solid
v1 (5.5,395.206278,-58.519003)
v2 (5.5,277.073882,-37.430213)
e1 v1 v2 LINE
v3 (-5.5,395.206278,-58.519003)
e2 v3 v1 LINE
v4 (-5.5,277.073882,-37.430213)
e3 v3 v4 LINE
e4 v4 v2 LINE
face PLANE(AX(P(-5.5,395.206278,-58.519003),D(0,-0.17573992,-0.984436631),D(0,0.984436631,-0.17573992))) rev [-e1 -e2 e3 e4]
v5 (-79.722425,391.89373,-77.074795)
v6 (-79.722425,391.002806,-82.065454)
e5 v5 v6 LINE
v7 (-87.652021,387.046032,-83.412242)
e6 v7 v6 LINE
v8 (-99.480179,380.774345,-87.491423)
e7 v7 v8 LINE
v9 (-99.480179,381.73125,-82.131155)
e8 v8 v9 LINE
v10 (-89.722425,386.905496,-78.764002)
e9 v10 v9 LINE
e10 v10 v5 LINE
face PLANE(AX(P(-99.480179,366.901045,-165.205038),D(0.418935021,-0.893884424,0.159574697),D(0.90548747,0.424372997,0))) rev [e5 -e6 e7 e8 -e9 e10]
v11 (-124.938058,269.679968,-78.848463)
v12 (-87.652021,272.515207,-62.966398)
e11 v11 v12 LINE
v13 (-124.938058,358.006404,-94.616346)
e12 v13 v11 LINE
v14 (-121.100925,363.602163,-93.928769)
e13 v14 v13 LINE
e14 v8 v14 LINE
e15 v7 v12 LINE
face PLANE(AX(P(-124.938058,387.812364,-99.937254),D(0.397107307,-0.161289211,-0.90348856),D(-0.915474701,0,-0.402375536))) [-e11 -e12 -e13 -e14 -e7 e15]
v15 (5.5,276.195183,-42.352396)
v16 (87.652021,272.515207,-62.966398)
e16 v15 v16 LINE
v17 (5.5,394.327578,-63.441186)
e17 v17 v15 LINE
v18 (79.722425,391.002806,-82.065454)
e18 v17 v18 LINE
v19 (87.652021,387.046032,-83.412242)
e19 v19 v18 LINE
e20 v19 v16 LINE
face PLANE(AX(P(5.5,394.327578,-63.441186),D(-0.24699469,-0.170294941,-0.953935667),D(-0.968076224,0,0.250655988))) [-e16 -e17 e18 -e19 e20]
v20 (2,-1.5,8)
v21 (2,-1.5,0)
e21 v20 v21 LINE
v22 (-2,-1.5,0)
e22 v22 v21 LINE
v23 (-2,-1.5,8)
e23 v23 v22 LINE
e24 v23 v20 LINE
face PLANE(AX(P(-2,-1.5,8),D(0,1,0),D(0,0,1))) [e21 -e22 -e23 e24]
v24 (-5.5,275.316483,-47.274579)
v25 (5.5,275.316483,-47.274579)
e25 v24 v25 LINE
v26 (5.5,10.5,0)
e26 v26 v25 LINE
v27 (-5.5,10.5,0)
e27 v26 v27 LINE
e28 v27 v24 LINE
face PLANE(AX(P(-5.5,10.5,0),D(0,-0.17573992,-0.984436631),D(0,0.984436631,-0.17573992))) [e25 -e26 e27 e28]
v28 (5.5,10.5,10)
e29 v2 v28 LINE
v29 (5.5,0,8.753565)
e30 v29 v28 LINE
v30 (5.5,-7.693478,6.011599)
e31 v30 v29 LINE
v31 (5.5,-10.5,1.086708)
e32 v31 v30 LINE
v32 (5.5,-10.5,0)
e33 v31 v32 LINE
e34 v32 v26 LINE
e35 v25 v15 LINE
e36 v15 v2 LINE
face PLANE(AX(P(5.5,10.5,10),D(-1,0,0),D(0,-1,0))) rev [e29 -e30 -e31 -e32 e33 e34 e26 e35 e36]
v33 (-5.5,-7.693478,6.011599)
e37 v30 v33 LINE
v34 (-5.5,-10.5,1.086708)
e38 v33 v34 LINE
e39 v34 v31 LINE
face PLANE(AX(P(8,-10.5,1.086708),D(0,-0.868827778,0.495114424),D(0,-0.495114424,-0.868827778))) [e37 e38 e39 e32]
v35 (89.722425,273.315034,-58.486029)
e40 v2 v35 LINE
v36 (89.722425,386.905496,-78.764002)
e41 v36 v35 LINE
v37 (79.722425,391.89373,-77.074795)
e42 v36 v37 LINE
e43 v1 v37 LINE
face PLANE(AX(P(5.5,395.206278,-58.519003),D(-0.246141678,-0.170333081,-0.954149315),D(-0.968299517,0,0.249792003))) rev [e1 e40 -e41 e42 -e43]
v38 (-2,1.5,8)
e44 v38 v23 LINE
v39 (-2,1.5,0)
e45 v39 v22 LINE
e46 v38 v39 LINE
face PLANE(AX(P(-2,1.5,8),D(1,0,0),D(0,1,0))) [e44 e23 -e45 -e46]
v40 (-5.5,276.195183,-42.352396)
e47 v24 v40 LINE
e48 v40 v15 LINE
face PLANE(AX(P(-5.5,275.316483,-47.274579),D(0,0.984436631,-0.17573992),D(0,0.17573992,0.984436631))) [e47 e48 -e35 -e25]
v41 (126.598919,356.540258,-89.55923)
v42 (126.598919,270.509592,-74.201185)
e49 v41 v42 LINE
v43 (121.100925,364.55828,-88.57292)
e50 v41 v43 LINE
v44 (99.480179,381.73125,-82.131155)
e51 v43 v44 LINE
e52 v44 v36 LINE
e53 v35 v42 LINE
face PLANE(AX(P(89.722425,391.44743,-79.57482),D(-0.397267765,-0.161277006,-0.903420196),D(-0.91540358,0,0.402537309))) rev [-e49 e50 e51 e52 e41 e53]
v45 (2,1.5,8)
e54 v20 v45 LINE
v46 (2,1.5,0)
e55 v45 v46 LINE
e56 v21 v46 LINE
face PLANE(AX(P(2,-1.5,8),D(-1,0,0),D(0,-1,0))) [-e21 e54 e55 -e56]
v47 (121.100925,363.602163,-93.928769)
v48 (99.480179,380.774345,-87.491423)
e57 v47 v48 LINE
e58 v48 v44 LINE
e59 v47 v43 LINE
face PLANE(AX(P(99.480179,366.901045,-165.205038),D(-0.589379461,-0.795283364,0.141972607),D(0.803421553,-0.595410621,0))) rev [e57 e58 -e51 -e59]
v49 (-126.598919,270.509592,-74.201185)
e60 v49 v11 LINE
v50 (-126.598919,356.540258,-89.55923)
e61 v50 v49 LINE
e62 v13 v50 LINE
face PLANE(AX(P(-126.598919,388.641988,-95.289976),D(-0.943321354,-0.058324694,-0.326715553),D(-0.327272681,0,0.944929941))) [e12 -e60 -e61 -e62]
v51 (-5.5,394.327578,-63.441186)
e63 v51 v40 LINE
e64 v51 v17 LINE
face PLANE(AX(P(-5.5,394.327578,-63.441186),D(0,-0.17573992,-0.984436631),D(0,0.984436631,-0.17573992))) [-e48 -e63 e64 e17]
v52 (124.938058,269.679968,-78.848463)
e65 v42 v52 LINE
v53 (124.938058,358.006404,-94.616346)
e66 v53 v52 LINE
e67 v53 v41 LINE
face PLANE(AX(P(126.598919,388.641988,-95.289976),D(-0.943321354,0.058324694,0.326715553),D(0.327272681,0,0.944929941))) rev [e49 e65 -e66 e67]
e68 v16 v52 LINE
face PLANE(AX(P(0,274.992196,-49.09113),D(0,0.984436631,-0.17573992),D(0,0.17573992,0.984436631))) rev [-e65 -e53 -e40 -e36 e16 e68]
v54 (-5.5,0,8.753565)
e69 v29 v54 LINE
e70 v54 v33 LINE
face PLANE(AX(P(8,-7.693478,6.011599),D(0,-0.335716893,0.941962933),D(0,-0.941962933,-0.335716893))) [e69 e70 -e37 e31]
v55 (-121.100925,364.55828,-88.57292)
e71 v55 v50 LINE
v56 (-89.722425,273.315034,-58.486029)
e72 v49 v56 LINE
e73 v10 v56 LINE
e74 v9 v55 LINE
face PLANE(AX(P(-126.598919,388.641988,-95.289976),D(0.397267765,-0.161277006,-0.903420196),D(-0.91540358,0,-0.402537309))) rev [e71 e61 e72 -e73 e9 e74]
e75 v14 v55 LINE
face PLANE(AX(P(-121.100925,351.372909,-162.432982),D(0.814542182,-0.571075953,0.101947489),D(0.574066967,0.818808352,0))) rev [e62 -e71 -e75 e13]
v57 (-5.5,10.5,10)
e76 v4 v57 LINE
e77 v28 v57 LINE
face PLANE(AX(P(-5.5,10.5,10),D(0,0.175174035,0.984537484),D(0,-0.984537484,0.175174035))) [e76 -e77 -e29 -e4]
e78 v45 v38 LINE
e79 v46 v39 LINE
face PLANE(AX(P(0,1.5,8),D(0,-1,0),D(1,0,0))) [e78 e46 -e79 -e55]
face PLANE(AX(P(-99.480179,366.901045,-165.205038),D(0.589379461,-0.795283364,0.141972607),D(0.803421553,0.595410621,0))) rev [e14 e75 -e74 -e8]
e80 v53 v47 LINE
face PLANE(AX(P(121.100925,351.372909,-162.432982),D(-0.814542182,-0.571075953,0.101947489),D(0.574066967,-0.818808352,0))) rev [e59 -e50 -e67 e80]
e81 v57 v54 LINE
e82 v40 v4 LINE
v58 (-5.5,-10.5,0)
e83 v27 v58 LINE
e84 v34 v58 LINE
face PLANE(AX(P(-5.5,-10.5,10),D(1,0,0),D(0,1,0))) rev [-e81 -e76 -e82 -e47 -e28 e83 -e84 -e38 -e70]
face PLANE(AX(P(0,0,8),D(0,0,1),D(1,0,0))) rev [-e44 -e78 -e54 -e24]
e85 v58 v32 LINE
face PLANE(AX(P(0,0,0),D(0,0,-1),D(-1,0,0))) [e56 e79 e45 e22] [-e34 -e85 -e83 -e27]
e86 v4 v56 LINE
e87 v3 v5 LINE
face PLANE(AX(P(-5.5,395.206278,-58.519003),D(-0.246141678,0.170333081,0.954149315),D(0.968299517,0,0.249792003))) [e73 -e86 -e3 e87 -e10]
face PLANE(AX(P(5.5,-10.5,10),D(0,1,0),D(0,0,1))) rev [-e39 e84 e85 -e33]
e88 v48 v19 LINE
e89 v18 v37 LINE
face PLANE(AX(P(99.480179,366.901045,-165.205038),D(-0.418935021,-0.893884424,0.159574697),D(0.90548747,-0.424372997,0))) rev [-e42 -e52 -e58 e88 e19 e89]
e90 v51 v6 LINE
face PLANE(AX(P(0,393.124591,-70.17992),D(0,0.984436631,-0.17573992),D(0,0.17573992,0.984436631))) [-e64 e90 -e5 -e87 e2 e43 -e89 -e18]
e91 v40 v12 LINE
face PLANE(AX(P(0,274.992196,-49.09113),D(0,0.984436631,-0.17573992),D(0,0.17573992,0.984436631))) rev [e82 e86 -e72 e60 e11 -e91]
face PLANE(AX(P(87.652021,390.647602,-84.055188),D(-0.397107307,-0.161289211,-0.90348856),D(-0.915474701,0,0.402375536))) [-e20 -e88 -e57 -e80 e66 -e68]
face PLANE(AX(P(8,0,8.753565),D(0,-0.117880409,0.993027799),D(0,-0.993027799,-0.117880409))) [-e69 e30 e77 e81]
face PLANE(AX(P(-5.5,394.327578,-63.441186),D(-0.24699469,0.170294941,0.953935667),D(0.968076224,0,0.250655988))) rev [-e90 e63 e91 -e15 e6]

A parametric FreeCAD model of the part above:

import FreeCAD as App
import Part
import Sketcher

V = App.Vector


def add_polygon(sketch, points):
    """Adds a closed chain of lines whose ends are joined by coincident constraints."""
    first, n = sketch.GeometryCount, len(points)
    for a, b in zip(points, points[1:] + points[:1]):
        sketch.addGeometry(Part.LineSegment(App.Vector(*a, 0), App.Vector(*b, 0)), False)
    for i in range(n):
        sketch.addConstraint(Sketcher.Constraint("Coincident", first + i, 2, first + (i + 1) % n, 1))

doc = App.newDocument("Part")
params = doc.addObject("Spreadsheet::Sheet", "Params")
for row, (alias, value) in enumerate([
    ("sketch1_width", "11 mm"),
    ("sketch1_height", "21 mm"),
    ("pad1_length", "10 mm"),
    ("sketch2_width", "4 mm"),
    ("sketch2_height", "3 mm"),
    ("pocket1_length", "8 mm"),
    ("sketch4_height", "10 mm"),
    ("sketch4_length", "10 mm"),
    ("pad2_length", "5.5 mm"),
    ("pad2_length2", "5.5 mm"),
    ("sketch5_width", "11 mm"),
    ("pad3_length", "120 mm"),
    ("pocket3_length", "120 mm"),
], start=1):
    params.set(f"A{row}", alias)
    params.set(f"B{row}", "=" + value)
    params.setAlias(f"B{row}", alias)

body = doc.addObject("PartDesign::Body", "Body")

# Sketch on XY plane
sketch1 = doc.addObject("Sketcher::SketchObject", "Sketch")
body.addObject(sketch1)
sketch1.AttachmentSupport = (doc.XY_Plane, [""])
sketch1.MapMode = "FlatFace"
add_polygon(sketch1, [(-5.5, 10.5), (-5.5, -10.5), (5.5, -10.5), (5.5, 10.5)])  # lines 0-3
sketch1.addConstraint([
    Sketcher.Constraint("Vertical", 0),
    Sketcher.Constraint("Horizontal", 1),
    Sketcher.Constraint("Vertical", 2),
    Sketcher.Constraint("Horizontal", 3),
    Sketcher.Constraint("Symmetric", 0, 2, 2, 2, -1, 1),
    Sketcher.Constraint("DistanceX", 1, 1, 1, 2, 11.0),
    Sketcher.Constraint("DistanceY", 0, 2, 0, 1, 21.0),
])
sketch1.setExpression("Constraints[9]", "Params.sketch1_width")
sketch1.setExpression("Constraints[10]", "Params.sketch1_height")
pad1 = doc.addObject("PartDesign::Pad", "Pad")
body.addObject(pad1)
pad1.Profile = sketch1
pad1.setExpression("Length", "Params.pad1_length")

# Sketch on XY plane
sketch2 = doc.addObject("Sketcher::SketchObject", "Sketch001")
body.addObject(sketch2)
sketch2.AttachmentSupport = (doc.XY_Plane, [""])
sketch2.MapMode = "FlatFace"
add_polygon(sketch2, [(-2, 1.5), (-2, -1.5), (2, -1.5), (2, 1.5)])  # lines 0-3
sketch2.addConstraint([
    Sketcher.Constraint("Vertical", 0),
    Sketcher.Constraint("Horizontal", 1),
    Sketcher.Constraint("Vertical", 2),
    Sketcher.Constraint("Horizontal", 3),
    Sketcher.Constraint("Symmetric", 0, 2, 2, 2, -1, 1),
    Sketcher.Constraint("DistanceX", 1, 1, 1, 2, 4.0),
    Sketcher.Constraint("DistanceY", 0, 2, 0, 1, 3.0),
])
sketch2.setExpression("Constraints[9]", "Params.sketch2_width")
sketch2.setExpression("Constraints[10]", "Params.sketch2_height")
pocket1 = doc.addObject("PartDesign::Pocket", "Pocket")
body.addObject(pocket1)
pocket1.Profile = sketch2
pocket1.setExpression("Length", "Params.pocket1_length")
pocket1.Reversed = True

# Sketch on YZ plane
sketch3 = doc.addObject("Sketcher::SketchObject", "Sketch002")
body.addObject(sketch3)
sketch3.AttachmentSupport = (doc.YZ_Plane, [""])
sketch3.MapMode = "FlatFace"
add_polygon(sketch3, [(-10.5, 1.086709), (-7.693478, 6.011599), (0, 8.753565), (10.5, 10), (-11.32446, 10), (-10.760659, 1.086709)])  # lines 0-5
sketch3.addConstraint([
    Sketcher.Constraint("Horizontal", 3),
    Sketcher.Constraint("Horizontal", 5),
    Sketcher.Constraint("PointOnObject", 1, 2, -2),
    Sketcher.Constraint("DistanceY", -1, 1, 2, 2, 10.0),
    Sketcher.Constraint("DistanceX", 5, 2, 2, 2, 21.0),
    Sketcher.Constraint("DistanceX", -1, 1, 2, 2, 10.5),
    Sketcher.Constraint("DistanceX", 3, 2, 3, 1, 21.82446),
    Sketcher.Constraint("DistanceX", 5, 1, 5, 2, 0.260659),
    Sketcher.Constraint("DistanceY", -1, 1, 0, 2, 6.011599),
    Sketcher.Constraint("Distance", 0, 5.668431),
    Sketcher.Constraint("DistanceY", -1, 1, 4, 2, 1.086709),
    Sketcher.Constraint("Distance", 1, 8.167495),
])
pocket2 = doc.addObject("PartDesign::Pocket", "Pocket001")
body.addObject(pocket2)
pocket2.Profile = sketch3
pocket2.Type = "ThroughAll"
pocket2.Midplane = True

# Sketch on YZ plane
sketch4 = doc.addObject("Sketcher::SketchObject", "Sketch003")
body.addObject(sketch4)
sketch4.AttachmentSupport = (doc.YZ_Plane, [""])
sketch4.MapMode = "FlatFace"
add_polygon(sketch4, [(10.5, 0), (275.316483, -47.274579), (277.073882, -37.430213), (10.5, 10)])  # lines 0-3
sketch4.addConstraint([
    Sketcher.Constraint("Vertical", 3),
    Sketcher.Constraint("PointOnObject", 3, 2, -1),
    Sketcher.Constraint("Perpendicular", 0, 1),
    Sketcher.Constraint("DistanceY", 3, 2, 3, 1, 10.0),
    Sketcher.Constraint("Distance", 1, 10.0),
    Sketcher.Constraint("DistanceX", -1, 1, 2, 2, 10.5),
    Sketcher.Constraint("DistanceX", 0, 2, 1, 2, 1.757399),
    Sketcher.Constraint("Distance", 2, 270.760521),
])
sketch4.setExpression("Constraints[7]", "Params.sketch4_height")
sketch4.setExpression("Constraints[8]", "Params.sketch4_length")
pad2 = doc.addObject("PartDesign::Pad", "Pad001")
body.addObject(pad2)
pad2.Profile = sketch4
pad2.Type = "TwoLengths"
pad2.setExpression("Length", "Params.pad2_length")
pad2.setExpression("Length2", "Params.pad2_length2")

# Sketch on an angled plane
sketch5 = doc.addObject("Sketcher::SketchObject", "Sketch004")
body.addObject(sketch5)
sketch5.Placement = App.Placement(V(0, 274.992196, -49.09113), App.Rotation(V(1, 0, 0), V(0, -0.17573992, -0.984436631), V(0, 0.984436631, -0.17573992), "ZXY"))
add_polygon(sketch5, [(5.5, -11.845269), (89.722425, 9.543427), (126.598919, 25.507031), (124.938058, 30.22778), (87.652021, 14.094628), (5.5, -6.845269), (-5.5, -6.845269), (-87.652021, 14.094628), (-124.938058, 30.22778), (-126.598919, 25.507031), (-89.722425, 9.543427), (-5.5, -11.845269)])  # lines 0-11
sketch5.addConstraint([
    Sketcher.Constraint("Horizontal", 5),
    Sketcher.Constraint("Horizontal", 11),
    Sketcher.Constraint("Symmetric", 3, 2, 6, 2, -2),
    Sketcher.Constraint("Symmetric", 2, 2, 7, 2, -2),
    Sketcher.Constraint("Symmetric", 1, 2, 8, 2, -2),
    Sketcher.Constraint("Symmetric", 0, 2, 9, 2, -2),
    Sketcher.Constraint("Vertical", 5, 2, 10, 2),
    Sketcher.Constraint("Vertical", 4, 2, 11, 2),
    Sketcher.Constraint("Equal", 4, 6),
    Sketcher.Constraint("DistanceX", 5, 2, 5, 1, 11.0),
    Sketcher.Constraint("DistanceY", 10, 2, 5, 2, 5.0),
    Sketcher.Constraint("DistanceY", 0, 2, 3, 2, 4.551201),
    Sketcher.Constraint("DistanceX", 3, 2, 1, 2, 38.946898),
    Sketcher.Constraint("DistanceY", 4, 2, 1, 2, 32.3523),
    Sketcher.Constraint("Distance", 2, 5.004391),
    Sketcher.Constraint("Distance", 3, 40.62668),
    Sketcher.Constraint("DistanceX", -1, 1, 1, 2, 126.598919),
    Sketcher.Constraint("DistanceY", -1, 1, 1, 2, 25.507031),
    Sketcher.Constraint("DistanceY", -1, 1, 2, 2, 30.22778),
    Sketcher.Constraint("Distance", 0, 86.895875),
])
sketch5.setExpression("Constraints[21]", "Params.sketch5_width")
pad3 = doc.addObject("PartDesign::Pad", "Pad002")
body.addObject(pad3)
pad3.Profile = sketch5
pad3.setExpression("Length", "Params.pad3_length")

# Sketch on an angled plane
sketch6 = doc.addObject("Sketcher::SketchObject", "Sketch005")
body.addObject(sketch6)
sketch6.Placement = App.Placement(V(0, 3.839086, 21.505283), App.Rotation(V(1, 0, 0), V(0, 0.984436631, -0.17573992), V(0, 0.17573992, 0.984436631), "ZXY"))
add_polygon(sketch6, [(-5.5, 419.339662), (-1.559239, 421.572877), (-44.351515, 435.559129), (-45.770076, 435.559129), (-131.689369, 409.111535), (-185.542931, 339.339662), (-131.689369, 359.582766), (-121.100925, 374.450323), (-99.480179, 390.223949), (-79.722425, 399.339662)])  # lines 0-9
add_polygon(sketch6, [(5.5, 419.339662), (79.722425, 399.339662), (99.480179, 390.223949), (121.100925, 374.450323), (131.689369, 359.582766), (185.542931, 339.339662), (131.689369, 409.111535), (45.770076, 435.559129), (44.351515, 435.559129), (1.559239, 421.572877)])  # lines 10-19
sketch6.addConstraint([
    Sketcher.Constraint("Horizontal", 2),
    Sketcher.Constraint("Horizontal", 17),
    Sketcher.Constraint("Symmetric", 8, 2, 10, 2, -2),
    Sketcher.Constraint("Symmetric", 7, 2, 11, 2, -2),
    Sketcher.Constraint("Symmetric", 6, 2, 12, 2, -2),
    Sketcher.Constraint("Symmetric", 5, 2, 13, 2, -2),
    Sketcher.Constraint("Symmetric", 4, 2, 14, 2, -2),
    Sketcher.Constraint("Symmetric", 3, 2, 15, 2, -2),
    Sketcher.Constraint("Symmetric", 2, 2, 16, 2, -2),
    Sketcher.Constraint("Symmetric", 0, 2, 18, 2, -2),
    Sketcher.Constraint("Symmetric", 9, 2, 19, 2, -2),
    Sketcher.Constraint("Vertical", 3, 2, 5, 2),
    Sketcher.Constraint("Equal", 2, 17),
    Sketcher.Constraint("DistanceY", 8, 2, 9, 2, 20.0),
    Sketcher.Constraint("DistanceY", 14, 2, 10, 2, 60.0),
    Sketcher.Constraint("DistanceX", 9, 2, 19, 2, 11.0),
    Sketcher.Constraint("DistanceX", 2, 2, 2, 1, 1.418561),
    Sketcher.Constraint("DistanceX", 6, 2, 8, 2, 41.378501),
    Sketcher.Constraint("DistanceX", 2, 2, 10, 2, 125.4925),
    Sketcher.Constraint("Distance", 1, 45.01993),
    Sketcher.Constraint("Distance", 3, 89.89772),
    Sketcher.Constraint("DistanceX", 0, 2, -1, 1, 1.559239),
    Sketcher.Constraint("DistanceY", -1, 1, 1, 2, 435.559129),
    Sketcher.Constraint("DistanceX", 3, 2, -1, 1, 131.689369),
    Sketcher.Constraint("DistanceX", 4, 2, -1, 1, 185.542931),
    Sketcher.Constraint("DistanceY", -1, 1, 4, 2, 339.339662),
    Sketcher.Constraint("DistanceX", 7, 2, -1, 1, 99.480179),
    Sketcher.Constraint("DistanceY", -1, 1, 7, 2, 390.223949),
    Sketcher.Constraint("DistanceY", 3, 2, 0, 2, 12.461342),
    Sketcher.Constraint("DistanceY", 5, 2, 3, 2, 49.528769),
    Sketcher.Constraint("DistanceY", 4, 2, 6, 2, 35.110661),
])
pocket3 = doc.addObject("PartDesign::Pocket", "Pocket002")
body.addObject(pocket3)
pocket3.Profile = sketch6
pocket3.setExpression("Length", "Params.pocket3_length")

doc.recompute()
